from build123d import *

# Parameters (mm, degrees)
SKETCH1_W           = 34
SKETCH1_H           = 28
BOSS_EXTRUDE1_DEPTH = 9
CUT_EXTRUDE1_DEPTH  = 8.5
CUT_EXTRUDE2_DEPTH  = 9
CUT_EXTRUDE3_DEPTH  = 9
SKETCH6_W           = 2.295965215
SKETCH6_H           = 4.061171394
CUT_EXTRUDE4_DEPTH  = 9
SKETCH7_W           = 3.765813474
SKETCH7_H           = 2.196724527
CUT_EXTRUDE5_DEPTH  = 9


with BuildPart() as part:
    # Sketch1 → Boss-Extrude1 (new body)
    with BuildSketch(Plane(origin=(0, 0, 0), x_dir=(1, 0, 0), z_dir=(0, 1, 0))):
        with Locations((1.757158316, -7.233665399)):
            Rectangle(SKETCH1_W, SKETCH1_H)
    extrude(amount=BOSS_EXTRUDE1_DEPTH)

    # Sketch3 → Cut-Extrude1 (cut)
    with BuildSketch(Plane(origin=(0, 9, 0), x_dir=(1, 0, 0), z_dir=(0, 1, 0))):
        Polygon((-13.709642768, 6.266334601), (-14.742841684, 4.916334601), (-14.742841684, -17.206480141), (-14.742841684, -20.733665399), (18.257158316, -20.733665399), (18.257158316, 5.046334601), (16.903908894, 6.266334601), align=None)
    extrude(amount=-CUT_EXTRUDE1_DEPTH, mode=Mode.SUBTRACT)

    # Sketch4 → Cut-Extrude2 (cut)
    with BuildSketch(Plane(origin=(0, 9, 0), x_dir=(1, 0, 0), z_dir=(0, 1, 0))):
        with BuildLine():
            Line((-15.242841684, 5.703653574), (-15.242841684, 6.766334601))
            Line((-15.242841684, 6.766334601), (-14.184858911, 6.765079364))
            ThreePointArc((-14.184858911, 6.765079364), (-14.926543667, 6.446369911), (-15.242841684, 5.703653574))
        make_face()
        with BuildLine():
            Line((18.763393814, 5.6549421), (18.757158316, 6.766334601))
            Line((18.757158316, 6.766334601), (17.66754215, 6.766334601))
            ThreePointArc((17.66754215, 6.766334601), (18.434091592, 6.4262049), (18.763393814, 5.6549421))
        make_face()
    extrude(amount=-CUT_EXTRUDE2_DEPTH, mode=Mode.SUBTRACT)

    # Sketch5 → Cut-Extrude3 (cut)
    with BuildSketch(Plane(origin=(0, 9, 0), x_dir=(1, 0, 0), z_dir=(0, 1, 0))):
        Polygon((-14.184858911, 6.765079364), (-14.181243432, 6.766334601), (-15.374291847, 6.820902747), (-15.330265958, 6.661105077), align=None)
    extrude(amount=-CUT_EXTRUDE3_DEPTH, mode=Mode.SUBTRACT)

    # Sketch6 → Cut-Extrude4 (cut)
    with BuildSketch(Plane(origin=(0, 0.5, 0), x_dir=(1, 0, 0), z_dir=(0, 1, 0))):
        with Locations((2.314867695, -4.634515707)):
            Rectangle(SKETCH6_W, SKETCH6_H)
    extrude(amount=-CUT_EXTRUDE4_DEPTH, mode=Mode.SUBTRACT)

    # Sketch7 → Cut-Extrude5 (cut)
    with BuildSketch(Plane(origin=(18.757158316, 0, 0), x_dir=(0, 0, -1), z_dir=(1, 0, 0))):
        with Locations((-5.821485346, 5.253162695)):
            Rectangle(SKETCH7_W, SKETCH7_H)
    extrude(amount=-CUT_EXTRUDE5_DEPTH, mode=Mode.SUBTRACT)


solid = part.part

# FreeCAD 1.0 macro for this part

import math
import FreeCAD as App
import Part
import Sketcher
from FreeCAD import Vector
Q = App.Units.Quantity

doc = App.newDocument("Part")
body = doc.addObject("PartDesign::Body", "Body")

# Sketch on XZ plane
sketch1 = doc.addObject("Sketcher::SketchObject", "Sketch")
body.addObject(sketch1)
sketch1.AttachmentSupport = (doc.XZ_Plane, [""])
sketch1.MapMode = "FlatFace"
sketch1.addGeometry(Part.LineSegment(Vector(-15, -7, 0), Vector(-15, 21, 0)), False)
sketch1.addGeometry(Part.LineSegment(Vector(-15, 21, 0), Vector(19, 21, 0)), False)
sketch1.addGeometry(Part.LineSegment(Vector(19, 21, 0), Vector(19, -7, 0)), False)
sketch1.addGeometry(Part.LineSegment(Vector(19, -7, 0), Vector(-15, -7, 0)), False)
sketch1.addConstraint(Sketcher.Constraint("Coincident", 0, 2, 1, 1))
sketch1.addConstraint(Sketcher.Constraint("Coincident", 1, 2, 2, 1))
sketch1.addConstraint(Sketcher.Constraint("Coincident", 2, 2, 3, 1))
sketch1.addConstraint(Sketcher.Constraint("Coincident", 3, 2, 0, 1))
sketch1.addConstraint(Sketcher.Constraint("Vertical", 0))
sketch1.addConstraint(Sketcher.Constraint("Horizontal", 1))
sketch1.addConstraint(Sketcher.Constraint("Vertical", 2))
sketch1.addConstraint(Sketcher.Constraint("Horizontal", 3))
sketch1.addConstraint(Sketcher.Constraint("DistanceX", 1, 1, 1, 2, Q("34 mm")))
sketch1.addConstraint(Sketcher.Constraint("DistanceY", 0, 1, 0, 2, Q("28 mm")))
sketch1.addConstraint(Sketcher.Constraint("DistanceX", 0, 2, -1, 1, Q("15.242842 mm")))
sketch1.addConstraint(Sketcher.Constraint("DistanceY", -1, 1, 0, 2, Q("21.233665 mm")))
pad1 = doc.addObject("PartDesign::Pad", "Pad")
body.addObject(pad1)
pad1.Profile = sketch1
pad1.Length = 9
pad1.Reversed = True

# Sketch on XZ plane
sketch2 = doc.addObject("Sketcher::SketchObject", "Sketch001")
body.addObject(sketch2)
sketch2.AttachmentSupport = (doc.XZ_Plane, [""])
sketch2.MapMode = "FlatFace"
sketch2.AttachmentOffset = App.Placement(Vector(0, 0, -9), App.Rotation())
sketch2.addGeometry(Part.LineSegment(Vector(-13.7, -6.3, 0), Vector(-14.7, -4.9, 0)), False)
sketch2.addGeometry(Part.LineSegment(Vector(-14.7, -4.9, 0), Vector(-14.7, 20.7, 0)), False)
sketch2.addGeometry(Part.LineSegment(Vector(-14.7, 20.7, 0), Vector(18.3, 20.7, 0)), False)
sketch2.addGeometry(Part.LineSegment(Vector(18.3, 20.7, 0), Vector(18.3, -5, 0)), False)
sketch2.addGeometry(Part.LineSegment(Vector(18.3, -5, 0), Vector(16.9, -6.3, 0)), False)
sketch2.addGeometry(Part.LineSegment(Vector(16.9, -6.3, 0), Vector(-13.7, -6.3, 0)), False)
sketch2.addConstraint(Sketcher.Constraint("Coincident", 0, 2, 1, 1))
sketch2.addConstraint(Sketcher.Constraint("Coincident", 1, 2, 2, 1))
sketch2.addConstraint(Sketcher.Constraint("Coincident", 2, 2, 3, 1))
sketch2.addConstraint(Sketcher.Constraint("Coincident", 3, 2, 4, 1))
sketch2.addConstraint(Sketcher.Constraint("Coincident", 4, 2, 5, 1))
sketch2.addConstraint(Sketcher.Constraint("Coincident", 5, 2, 0, 1))
sketch2.addConstraint(Sketcher.Constraint("Vertical", 1))
sketch2.addConstraint(Sketcher.Constraint("Horizontal", 2))
sketch2.addConstraint(Sketcher.Constraint("Vertical", 3))
sketch2.addConstraint(Sketcher.Constraint("Horizontal", 5))
sketch2.addConstraint(Sketcher.Constraint("DistanceX", 2, 1, 2, 2, Q("33 mm")))
sketch2.addConstraint(Sketcher.Constraint("DistanceY", 4, 2, 2, 2, Q("27 mm")))
sketch2.addConstraint(Sketcher.Constraint("Distance", 0, Q("1.7 mm")))
sketch2.addConstraint(Sketcher.Constraint("DistanceY", 1, 1, 1, 2, Q("25.65 mm")))
sketch2.addConstraint(Sketcher.Constraint("DistanceY", 3, 2, 3, 1, Q("25.78 mm")))
sketch2.addConstraint(Sketcher.Constraint("Distance", 4, Q("1.822 mm")))
sketch2.addConstraint(Sketcher.Constraint("DistanceX", 0, 2, -1, 1, Q("14.742842 mm")))
sketch2.addConstraint(Sketcher.Constraint("DistanceY", 0, 2, -1, 1, Q("4.916335 mm")))
pocket1 = doc.addObject("PartDesign::Pocket", "Pocket")
body.addObject(pocket1)
pocket1.Profile = sketch2
pocket1.Length = 8.5
pocket1.Reversed = True

# Sketch on XZ plane
sketch3 = doc.addObject("Sketcher::SketchObject", "Sketch002")
body.addObject(sketch3)
sketch3.AttachmentSupport = (doc.XZ_Plane, [""])
sketch3.MapMode = "FlatFace"
sketch3.AttachmentOffset = App.Placement(Vector(0, 0, -9), App.Rotation())
sketch3.addGeometry(Part.LineSegment(Vector(-15.2, -6.8, 0), Vector(-15.2, -5.7, 0)), False)
sketch3.addGeometry(Part.ArcOfCircle(Part.Circle(Vector(-14.2, -5.7, 0), Vector(0, 0, 1), 1.1), math.radians(-179), math.radians(-91)), False)
sketch3.addGeometry(Part.LineSegment(Vector(-14.2, -6.8, 0), Vector(-15.2, -6.8, 0)), False)
sketch3.addGeometry(Part.LineSegment(Vector(18.8, -5.7, 0), Vector(18.8, -6.8, 0)), False)
sketch3.addGeometry(Part.LineSegment(Vector(18.8, -6.8, 0), Vector(17.7, -6.8, 0)), False)
sketch3.addGeometry(Part.ArcOfCircle(Part.Circle(Vector(17.6, -5.6, 0), Vector(0, 0, 1), 1.1), math.radians(-88), math.radians(-2)), False)
sketch3.addConstraint(Sketcher.Constraint("Coincident", 0, 2, 1, 1))
sketch3.addConstraint(Sketcher.Constraint("Coincident", 1, 2, 2, 1))
sketch3.addConstraint(Sketcher.Constraint("Coincident", 2, 2, 0, 1))
sketch3.addConstraint(Sketcher.Constraint("Coincident", 3, 2, 4, 1))
sketch3.addConstraint(Sketcher.Constraint("Coincident", 4, 2, 5, 1))
sketch3.addConstraint(Sketcher.Constraint("Coincident", 5, 2, 3, 1))
sketch3.addConstraint(Sketcher.Constraint("Vertical", 0))
sketch3.addConstraint(Sketcher.Constraint("Horizontal", 4))
sketch3.addConstraint(Sketcher.Constraint("Horizontal", 2, 2, 3, 2))
sketch3.addConstraint(Sketcher.Constraint("DistanceX", 2, 2, 3, 2, Q("34 mm")))
sketch3.addConstraint(Sketcher.Constraint("Radius", 1, Q("1.085012 mm")))
sketch3.addConstraint(Sketcher.Constraint("Radius", 5, Q("1.145319 mm")))
sketch3.addConstraint(Sketcher.Constraint("DistanceY", 0, 1, 0, 2, Q("1.062681 mm")))
sketch3.addConstraint(Sketcher.Constraint("DistanceY", 1, 3, -1, 1, Q("5.680398 mm")))
sketch3.addConstraint(Sketcher.Constraint("DistanceX", 1, 2, 4, 2, Q("31.852401 mm")))
sketch3.addConstraint(Sketcher.Constraint("Distance", 3, Q("1.11141 mm")))
sketch3.addConstraint(Sketcher.Constraint("DistanceX", 4, 2, 4, 1, Q("1.089616 mm")))
sketch3.addConstraint(Sketcher.Constraint("DistanceX", 1, 3, -1, 1, Q("14.158079 mm")))
sketch3.addConstraint(Sketcher.Constraint("DistanceX", 0, 2, -1, 1, Q("15.242842 mm")))
sketch3.addConstraint(Sketcher.Constraint("DistanceX", 0, 2, 5, 3, Q("32.861389 mm")))
pocket2 = doc.addObject("PartDesign::Pocket", "Pocket001")
body.addObject(pocket2)
pocket2.Profile = sketch3
pocket2.Length = 9
pocket2.Reversed = True

# Sketch on XZ plane
sketch4 = doc.addObject("Sketcher::SketchObject", "Sketch003")
body.addObject(sketch4)
sketch4.AttachmentSupport = (doc.XZ_Plane, [""])
sketch4.MapMode = "FlatFace"
sketch4.AttachmentOffset = App.Placement(Vector(0, 0, -9), App.Rotation())
sketch4.addGeometry(Part.LineSegment(Vector(-14.1849, -6.7651, 0), Vector(-14.1812, -6.7663, 0)), False)
sketch4.addGeometry(Part.LineSegment(Vector(-14.1812, -6.7663, 0), Vector(-15.3743, -6.8209, 0)), False)
sketch4.addGeometry(Part.LineSegment(Vector(-15.3743, -6.8209, 0), Vector(-15.3303, -6.6611, 0)), False)
sketch4.addGeometry(Part.LineSegment(Vector(-15.3303, -6.6611, 0), Vector(-14.1849, -6.7651, 0)), False)
sketch4.addConstraint(Sketcher.Constraint("Coincident", 0, 2, 1, 1))
sketch4.addConstraint(Sketcher.Constraint("Coincident", 1, 2, 2, 1))
sketch4.addConstraint(Sketcher.Constraint("Coincident", 2, 2, 3, 1))
sketch4.addConstraint(Sketcher.Constraint("Coincident", 3, 2, 0, 1))
sketch4.addConstraint(Sketcher.Constraint("Distance", 2, Q("0.165752 mm")))
sketch4.addConstraint(Sketcher.Constraint("DistanceX", 1, 2, -1, 1, Q("15.374292 mm")))
sketch4.addConstraint(Sketcher.Constraint("DistanceX", 3, 2, -1, 1, Q("14.184859 mm")))
sketch4.addConstraint(Sketcher.Constraint("DistanceY", 3, 2, -1, 1, Q("6.765079 mm")))
sketch4.addConstraint(Sketcher.Constraint("DistanceX", 1, 2, 0, 2, Q("1.193048 mm")))
sketch4.addConstraint(Sketcher.Constraint("DistanceY", 1, 2, 0, 2, Q("0.054568 mm")))
sketch4.addConstraint(Sketcher.Constraint("DistanceY", 0, 2, 2, 2, Q("0.10523 mm")))
sketch4.addConstraint(Sketcher.Constraint("Distance", 0, Q("0.003827 mm")))
pocket3 = doc.addObject("PartDesign::Pocket", "Pocket002")
body.addObject(pocket3)
pocket3.Profile = sketch4
pocket3.Length = 9
pocket3.Reversed = True

# Sketch on XZ plane
sketch5 = doc.addObject("Sketcher::SketchObject", "Sketch004")
body.addObject(sketch5)
sketch5.AttachmentSupport = (doc.XZ_Plane, [""])
sketch5.MapMode = "FlatFace"
sketch5.AttachmentOffset = App.Placement(Vector(0, 0, -0.5), App.Rotation())
sketch5.addGeometry(Part.LineSegment(Vector(1.2, 2.6, 0), Vector(1.2, 6.7, 0)), False)
sketch5.addGeometry(Part.LineSegment(Vector(1.2, 6.7, 0), Vector(3.5, 6.7, 0)), False)
sketch5.addGeometry(Part.LineSegment(Vector(3.5, 6.7, 0), Vector(3.5, 2.6, 0)), False)
sketch5.addGeometry(Part.LineSegment(Vector(3.5, 2.6, 0), Vector(1.2, 2.6, 0)), False)
sketch5.addConstraint(Sketcher.Constraint("Coincident", 0, 2, 1, 1))
sketch5.addConstraint(Sketcher.Constraint("Coincident", 1, 2, 2, 1))
sketch5.addConstraint(Sketcher.Constraint("Coincident", 2, 2, 3, 1))
sketch5.addConstraint(Sketcher.Constraint("Coincident", 3, 2, 0, 1))
sketch5.addConstraint(Sketcher.Constraint("Vertical", 0))
sketch5.addConstraint(Sketcher.Constraint("Horizontal", 1))
sketch5.addConstraint(Sketcher.Constraint("Vertical", 2))
sketch5.addConstraint(Sketcher.Constraint("Horizontal", 3))
sketch5.addConstraint(Sketcher.Constraint("DistanceY", 0, 1, 0, 2, Q("4.061171 mm")))
sketch5.addConstraint(Sketcher.Constraint("DistanceY", -1, 1, 0, 2, Q("6.665101 mm")))
sketch5.addConstraint(Sketcher.Constraint("DistanceX", 1, 1, 1, 2, Q("2.295965 mm")))
sketch5.addConstraint(Sketcher.Constraint("DistanceX", -1, 1, 1, 2, Q("3.46285 mm")))
pocket4 = doc.addObject("PartDesign::Pocket", "Pocket003")
body.addObject(pocket4)
pocket4.Profile = sketch5
pocket4.Length = 9
pocket4.Reversed = True

# Sketch on YZ plane
sketch6 = doc.addObject("Sketcher::SketchObject", "Sketch005")
body.addObject(sketch6)
sketch6.AttachmentSupport = (doc.YZ_Plane, [""])
sketch6.MapMode = "FlatFace"
sketch6.AttachmentOffset = App.Placement(Vector(0, 0, 18.757158), App.Rotation())
sketch6.addGeometry(Part.LineSegment(Vector(6.4, 7.7, 0), Vector(4.2, 7.7, 0)), False)
sketch6.addGeometry(Part.LineSegment(Vector(4.2, 7.7, 0), Vector(4.2, 3.9, 0)), False)
sketch6.addGeometry(Part.LineSegment(Vector(4.2, 3.9, 0), Vector(6.4, 3.9, 0)), False)
sketch6.addGeometry(Part.LineSegment(Vector(6.4, 3.9, 0), Vector(6.4, 7.7, 0)), False)
sketch6.addConstraint(Sketcher.Constraint("Coincident", 0, 2, 1, 1))
sketch6.addConstraint(Sketcher.Constraint("Coincident", 1, 2, 2, 1))
sketch6.addConstraint(Sketcher.Constraint("Coincident", 2, 2, 3, 1))
sketch6.addConstraint(Sketcher.Constraint("Coincident", 3, 2, 0, 1))
sketch6.addConstraint(Sketcher.Constraint("Horizontal", 0))
sketch6.addConstraint(Sketcher.Constraint("Vertical", 1))
sketch6.addConstraint(Sketcher.Constraint("Horizontal", 2))
sketch6.addConstraint(Sketcher.Constraint("Vertical", 3))
sketch6.addConstraint(Sketcher.Constraint("DistanceX", -1, 1, 0, 2, Q("4.1548 mm")))
sketch6.addConstraint(Sketcher.Constraint("DistanceX", 0, 2, 0, 1, Q("2.196725 mm")))
sketch6.addConstraint(Sketcher.Constraint("DistanceY", 1, 2, 1, 1, Q("3.765813 mm")))
sketch6.addConstraint(Sketcher.Constraint("DistanceY", -1, 1, 1, 2, Q("3.938579 mm")))
pocket5 = doc.addObject("PartDesign::Pocket", "Pocket004")
body.addObject(pocket5)
pocket5.Profile = sketch6
pocket5.Length = 9

doc.recompute()
